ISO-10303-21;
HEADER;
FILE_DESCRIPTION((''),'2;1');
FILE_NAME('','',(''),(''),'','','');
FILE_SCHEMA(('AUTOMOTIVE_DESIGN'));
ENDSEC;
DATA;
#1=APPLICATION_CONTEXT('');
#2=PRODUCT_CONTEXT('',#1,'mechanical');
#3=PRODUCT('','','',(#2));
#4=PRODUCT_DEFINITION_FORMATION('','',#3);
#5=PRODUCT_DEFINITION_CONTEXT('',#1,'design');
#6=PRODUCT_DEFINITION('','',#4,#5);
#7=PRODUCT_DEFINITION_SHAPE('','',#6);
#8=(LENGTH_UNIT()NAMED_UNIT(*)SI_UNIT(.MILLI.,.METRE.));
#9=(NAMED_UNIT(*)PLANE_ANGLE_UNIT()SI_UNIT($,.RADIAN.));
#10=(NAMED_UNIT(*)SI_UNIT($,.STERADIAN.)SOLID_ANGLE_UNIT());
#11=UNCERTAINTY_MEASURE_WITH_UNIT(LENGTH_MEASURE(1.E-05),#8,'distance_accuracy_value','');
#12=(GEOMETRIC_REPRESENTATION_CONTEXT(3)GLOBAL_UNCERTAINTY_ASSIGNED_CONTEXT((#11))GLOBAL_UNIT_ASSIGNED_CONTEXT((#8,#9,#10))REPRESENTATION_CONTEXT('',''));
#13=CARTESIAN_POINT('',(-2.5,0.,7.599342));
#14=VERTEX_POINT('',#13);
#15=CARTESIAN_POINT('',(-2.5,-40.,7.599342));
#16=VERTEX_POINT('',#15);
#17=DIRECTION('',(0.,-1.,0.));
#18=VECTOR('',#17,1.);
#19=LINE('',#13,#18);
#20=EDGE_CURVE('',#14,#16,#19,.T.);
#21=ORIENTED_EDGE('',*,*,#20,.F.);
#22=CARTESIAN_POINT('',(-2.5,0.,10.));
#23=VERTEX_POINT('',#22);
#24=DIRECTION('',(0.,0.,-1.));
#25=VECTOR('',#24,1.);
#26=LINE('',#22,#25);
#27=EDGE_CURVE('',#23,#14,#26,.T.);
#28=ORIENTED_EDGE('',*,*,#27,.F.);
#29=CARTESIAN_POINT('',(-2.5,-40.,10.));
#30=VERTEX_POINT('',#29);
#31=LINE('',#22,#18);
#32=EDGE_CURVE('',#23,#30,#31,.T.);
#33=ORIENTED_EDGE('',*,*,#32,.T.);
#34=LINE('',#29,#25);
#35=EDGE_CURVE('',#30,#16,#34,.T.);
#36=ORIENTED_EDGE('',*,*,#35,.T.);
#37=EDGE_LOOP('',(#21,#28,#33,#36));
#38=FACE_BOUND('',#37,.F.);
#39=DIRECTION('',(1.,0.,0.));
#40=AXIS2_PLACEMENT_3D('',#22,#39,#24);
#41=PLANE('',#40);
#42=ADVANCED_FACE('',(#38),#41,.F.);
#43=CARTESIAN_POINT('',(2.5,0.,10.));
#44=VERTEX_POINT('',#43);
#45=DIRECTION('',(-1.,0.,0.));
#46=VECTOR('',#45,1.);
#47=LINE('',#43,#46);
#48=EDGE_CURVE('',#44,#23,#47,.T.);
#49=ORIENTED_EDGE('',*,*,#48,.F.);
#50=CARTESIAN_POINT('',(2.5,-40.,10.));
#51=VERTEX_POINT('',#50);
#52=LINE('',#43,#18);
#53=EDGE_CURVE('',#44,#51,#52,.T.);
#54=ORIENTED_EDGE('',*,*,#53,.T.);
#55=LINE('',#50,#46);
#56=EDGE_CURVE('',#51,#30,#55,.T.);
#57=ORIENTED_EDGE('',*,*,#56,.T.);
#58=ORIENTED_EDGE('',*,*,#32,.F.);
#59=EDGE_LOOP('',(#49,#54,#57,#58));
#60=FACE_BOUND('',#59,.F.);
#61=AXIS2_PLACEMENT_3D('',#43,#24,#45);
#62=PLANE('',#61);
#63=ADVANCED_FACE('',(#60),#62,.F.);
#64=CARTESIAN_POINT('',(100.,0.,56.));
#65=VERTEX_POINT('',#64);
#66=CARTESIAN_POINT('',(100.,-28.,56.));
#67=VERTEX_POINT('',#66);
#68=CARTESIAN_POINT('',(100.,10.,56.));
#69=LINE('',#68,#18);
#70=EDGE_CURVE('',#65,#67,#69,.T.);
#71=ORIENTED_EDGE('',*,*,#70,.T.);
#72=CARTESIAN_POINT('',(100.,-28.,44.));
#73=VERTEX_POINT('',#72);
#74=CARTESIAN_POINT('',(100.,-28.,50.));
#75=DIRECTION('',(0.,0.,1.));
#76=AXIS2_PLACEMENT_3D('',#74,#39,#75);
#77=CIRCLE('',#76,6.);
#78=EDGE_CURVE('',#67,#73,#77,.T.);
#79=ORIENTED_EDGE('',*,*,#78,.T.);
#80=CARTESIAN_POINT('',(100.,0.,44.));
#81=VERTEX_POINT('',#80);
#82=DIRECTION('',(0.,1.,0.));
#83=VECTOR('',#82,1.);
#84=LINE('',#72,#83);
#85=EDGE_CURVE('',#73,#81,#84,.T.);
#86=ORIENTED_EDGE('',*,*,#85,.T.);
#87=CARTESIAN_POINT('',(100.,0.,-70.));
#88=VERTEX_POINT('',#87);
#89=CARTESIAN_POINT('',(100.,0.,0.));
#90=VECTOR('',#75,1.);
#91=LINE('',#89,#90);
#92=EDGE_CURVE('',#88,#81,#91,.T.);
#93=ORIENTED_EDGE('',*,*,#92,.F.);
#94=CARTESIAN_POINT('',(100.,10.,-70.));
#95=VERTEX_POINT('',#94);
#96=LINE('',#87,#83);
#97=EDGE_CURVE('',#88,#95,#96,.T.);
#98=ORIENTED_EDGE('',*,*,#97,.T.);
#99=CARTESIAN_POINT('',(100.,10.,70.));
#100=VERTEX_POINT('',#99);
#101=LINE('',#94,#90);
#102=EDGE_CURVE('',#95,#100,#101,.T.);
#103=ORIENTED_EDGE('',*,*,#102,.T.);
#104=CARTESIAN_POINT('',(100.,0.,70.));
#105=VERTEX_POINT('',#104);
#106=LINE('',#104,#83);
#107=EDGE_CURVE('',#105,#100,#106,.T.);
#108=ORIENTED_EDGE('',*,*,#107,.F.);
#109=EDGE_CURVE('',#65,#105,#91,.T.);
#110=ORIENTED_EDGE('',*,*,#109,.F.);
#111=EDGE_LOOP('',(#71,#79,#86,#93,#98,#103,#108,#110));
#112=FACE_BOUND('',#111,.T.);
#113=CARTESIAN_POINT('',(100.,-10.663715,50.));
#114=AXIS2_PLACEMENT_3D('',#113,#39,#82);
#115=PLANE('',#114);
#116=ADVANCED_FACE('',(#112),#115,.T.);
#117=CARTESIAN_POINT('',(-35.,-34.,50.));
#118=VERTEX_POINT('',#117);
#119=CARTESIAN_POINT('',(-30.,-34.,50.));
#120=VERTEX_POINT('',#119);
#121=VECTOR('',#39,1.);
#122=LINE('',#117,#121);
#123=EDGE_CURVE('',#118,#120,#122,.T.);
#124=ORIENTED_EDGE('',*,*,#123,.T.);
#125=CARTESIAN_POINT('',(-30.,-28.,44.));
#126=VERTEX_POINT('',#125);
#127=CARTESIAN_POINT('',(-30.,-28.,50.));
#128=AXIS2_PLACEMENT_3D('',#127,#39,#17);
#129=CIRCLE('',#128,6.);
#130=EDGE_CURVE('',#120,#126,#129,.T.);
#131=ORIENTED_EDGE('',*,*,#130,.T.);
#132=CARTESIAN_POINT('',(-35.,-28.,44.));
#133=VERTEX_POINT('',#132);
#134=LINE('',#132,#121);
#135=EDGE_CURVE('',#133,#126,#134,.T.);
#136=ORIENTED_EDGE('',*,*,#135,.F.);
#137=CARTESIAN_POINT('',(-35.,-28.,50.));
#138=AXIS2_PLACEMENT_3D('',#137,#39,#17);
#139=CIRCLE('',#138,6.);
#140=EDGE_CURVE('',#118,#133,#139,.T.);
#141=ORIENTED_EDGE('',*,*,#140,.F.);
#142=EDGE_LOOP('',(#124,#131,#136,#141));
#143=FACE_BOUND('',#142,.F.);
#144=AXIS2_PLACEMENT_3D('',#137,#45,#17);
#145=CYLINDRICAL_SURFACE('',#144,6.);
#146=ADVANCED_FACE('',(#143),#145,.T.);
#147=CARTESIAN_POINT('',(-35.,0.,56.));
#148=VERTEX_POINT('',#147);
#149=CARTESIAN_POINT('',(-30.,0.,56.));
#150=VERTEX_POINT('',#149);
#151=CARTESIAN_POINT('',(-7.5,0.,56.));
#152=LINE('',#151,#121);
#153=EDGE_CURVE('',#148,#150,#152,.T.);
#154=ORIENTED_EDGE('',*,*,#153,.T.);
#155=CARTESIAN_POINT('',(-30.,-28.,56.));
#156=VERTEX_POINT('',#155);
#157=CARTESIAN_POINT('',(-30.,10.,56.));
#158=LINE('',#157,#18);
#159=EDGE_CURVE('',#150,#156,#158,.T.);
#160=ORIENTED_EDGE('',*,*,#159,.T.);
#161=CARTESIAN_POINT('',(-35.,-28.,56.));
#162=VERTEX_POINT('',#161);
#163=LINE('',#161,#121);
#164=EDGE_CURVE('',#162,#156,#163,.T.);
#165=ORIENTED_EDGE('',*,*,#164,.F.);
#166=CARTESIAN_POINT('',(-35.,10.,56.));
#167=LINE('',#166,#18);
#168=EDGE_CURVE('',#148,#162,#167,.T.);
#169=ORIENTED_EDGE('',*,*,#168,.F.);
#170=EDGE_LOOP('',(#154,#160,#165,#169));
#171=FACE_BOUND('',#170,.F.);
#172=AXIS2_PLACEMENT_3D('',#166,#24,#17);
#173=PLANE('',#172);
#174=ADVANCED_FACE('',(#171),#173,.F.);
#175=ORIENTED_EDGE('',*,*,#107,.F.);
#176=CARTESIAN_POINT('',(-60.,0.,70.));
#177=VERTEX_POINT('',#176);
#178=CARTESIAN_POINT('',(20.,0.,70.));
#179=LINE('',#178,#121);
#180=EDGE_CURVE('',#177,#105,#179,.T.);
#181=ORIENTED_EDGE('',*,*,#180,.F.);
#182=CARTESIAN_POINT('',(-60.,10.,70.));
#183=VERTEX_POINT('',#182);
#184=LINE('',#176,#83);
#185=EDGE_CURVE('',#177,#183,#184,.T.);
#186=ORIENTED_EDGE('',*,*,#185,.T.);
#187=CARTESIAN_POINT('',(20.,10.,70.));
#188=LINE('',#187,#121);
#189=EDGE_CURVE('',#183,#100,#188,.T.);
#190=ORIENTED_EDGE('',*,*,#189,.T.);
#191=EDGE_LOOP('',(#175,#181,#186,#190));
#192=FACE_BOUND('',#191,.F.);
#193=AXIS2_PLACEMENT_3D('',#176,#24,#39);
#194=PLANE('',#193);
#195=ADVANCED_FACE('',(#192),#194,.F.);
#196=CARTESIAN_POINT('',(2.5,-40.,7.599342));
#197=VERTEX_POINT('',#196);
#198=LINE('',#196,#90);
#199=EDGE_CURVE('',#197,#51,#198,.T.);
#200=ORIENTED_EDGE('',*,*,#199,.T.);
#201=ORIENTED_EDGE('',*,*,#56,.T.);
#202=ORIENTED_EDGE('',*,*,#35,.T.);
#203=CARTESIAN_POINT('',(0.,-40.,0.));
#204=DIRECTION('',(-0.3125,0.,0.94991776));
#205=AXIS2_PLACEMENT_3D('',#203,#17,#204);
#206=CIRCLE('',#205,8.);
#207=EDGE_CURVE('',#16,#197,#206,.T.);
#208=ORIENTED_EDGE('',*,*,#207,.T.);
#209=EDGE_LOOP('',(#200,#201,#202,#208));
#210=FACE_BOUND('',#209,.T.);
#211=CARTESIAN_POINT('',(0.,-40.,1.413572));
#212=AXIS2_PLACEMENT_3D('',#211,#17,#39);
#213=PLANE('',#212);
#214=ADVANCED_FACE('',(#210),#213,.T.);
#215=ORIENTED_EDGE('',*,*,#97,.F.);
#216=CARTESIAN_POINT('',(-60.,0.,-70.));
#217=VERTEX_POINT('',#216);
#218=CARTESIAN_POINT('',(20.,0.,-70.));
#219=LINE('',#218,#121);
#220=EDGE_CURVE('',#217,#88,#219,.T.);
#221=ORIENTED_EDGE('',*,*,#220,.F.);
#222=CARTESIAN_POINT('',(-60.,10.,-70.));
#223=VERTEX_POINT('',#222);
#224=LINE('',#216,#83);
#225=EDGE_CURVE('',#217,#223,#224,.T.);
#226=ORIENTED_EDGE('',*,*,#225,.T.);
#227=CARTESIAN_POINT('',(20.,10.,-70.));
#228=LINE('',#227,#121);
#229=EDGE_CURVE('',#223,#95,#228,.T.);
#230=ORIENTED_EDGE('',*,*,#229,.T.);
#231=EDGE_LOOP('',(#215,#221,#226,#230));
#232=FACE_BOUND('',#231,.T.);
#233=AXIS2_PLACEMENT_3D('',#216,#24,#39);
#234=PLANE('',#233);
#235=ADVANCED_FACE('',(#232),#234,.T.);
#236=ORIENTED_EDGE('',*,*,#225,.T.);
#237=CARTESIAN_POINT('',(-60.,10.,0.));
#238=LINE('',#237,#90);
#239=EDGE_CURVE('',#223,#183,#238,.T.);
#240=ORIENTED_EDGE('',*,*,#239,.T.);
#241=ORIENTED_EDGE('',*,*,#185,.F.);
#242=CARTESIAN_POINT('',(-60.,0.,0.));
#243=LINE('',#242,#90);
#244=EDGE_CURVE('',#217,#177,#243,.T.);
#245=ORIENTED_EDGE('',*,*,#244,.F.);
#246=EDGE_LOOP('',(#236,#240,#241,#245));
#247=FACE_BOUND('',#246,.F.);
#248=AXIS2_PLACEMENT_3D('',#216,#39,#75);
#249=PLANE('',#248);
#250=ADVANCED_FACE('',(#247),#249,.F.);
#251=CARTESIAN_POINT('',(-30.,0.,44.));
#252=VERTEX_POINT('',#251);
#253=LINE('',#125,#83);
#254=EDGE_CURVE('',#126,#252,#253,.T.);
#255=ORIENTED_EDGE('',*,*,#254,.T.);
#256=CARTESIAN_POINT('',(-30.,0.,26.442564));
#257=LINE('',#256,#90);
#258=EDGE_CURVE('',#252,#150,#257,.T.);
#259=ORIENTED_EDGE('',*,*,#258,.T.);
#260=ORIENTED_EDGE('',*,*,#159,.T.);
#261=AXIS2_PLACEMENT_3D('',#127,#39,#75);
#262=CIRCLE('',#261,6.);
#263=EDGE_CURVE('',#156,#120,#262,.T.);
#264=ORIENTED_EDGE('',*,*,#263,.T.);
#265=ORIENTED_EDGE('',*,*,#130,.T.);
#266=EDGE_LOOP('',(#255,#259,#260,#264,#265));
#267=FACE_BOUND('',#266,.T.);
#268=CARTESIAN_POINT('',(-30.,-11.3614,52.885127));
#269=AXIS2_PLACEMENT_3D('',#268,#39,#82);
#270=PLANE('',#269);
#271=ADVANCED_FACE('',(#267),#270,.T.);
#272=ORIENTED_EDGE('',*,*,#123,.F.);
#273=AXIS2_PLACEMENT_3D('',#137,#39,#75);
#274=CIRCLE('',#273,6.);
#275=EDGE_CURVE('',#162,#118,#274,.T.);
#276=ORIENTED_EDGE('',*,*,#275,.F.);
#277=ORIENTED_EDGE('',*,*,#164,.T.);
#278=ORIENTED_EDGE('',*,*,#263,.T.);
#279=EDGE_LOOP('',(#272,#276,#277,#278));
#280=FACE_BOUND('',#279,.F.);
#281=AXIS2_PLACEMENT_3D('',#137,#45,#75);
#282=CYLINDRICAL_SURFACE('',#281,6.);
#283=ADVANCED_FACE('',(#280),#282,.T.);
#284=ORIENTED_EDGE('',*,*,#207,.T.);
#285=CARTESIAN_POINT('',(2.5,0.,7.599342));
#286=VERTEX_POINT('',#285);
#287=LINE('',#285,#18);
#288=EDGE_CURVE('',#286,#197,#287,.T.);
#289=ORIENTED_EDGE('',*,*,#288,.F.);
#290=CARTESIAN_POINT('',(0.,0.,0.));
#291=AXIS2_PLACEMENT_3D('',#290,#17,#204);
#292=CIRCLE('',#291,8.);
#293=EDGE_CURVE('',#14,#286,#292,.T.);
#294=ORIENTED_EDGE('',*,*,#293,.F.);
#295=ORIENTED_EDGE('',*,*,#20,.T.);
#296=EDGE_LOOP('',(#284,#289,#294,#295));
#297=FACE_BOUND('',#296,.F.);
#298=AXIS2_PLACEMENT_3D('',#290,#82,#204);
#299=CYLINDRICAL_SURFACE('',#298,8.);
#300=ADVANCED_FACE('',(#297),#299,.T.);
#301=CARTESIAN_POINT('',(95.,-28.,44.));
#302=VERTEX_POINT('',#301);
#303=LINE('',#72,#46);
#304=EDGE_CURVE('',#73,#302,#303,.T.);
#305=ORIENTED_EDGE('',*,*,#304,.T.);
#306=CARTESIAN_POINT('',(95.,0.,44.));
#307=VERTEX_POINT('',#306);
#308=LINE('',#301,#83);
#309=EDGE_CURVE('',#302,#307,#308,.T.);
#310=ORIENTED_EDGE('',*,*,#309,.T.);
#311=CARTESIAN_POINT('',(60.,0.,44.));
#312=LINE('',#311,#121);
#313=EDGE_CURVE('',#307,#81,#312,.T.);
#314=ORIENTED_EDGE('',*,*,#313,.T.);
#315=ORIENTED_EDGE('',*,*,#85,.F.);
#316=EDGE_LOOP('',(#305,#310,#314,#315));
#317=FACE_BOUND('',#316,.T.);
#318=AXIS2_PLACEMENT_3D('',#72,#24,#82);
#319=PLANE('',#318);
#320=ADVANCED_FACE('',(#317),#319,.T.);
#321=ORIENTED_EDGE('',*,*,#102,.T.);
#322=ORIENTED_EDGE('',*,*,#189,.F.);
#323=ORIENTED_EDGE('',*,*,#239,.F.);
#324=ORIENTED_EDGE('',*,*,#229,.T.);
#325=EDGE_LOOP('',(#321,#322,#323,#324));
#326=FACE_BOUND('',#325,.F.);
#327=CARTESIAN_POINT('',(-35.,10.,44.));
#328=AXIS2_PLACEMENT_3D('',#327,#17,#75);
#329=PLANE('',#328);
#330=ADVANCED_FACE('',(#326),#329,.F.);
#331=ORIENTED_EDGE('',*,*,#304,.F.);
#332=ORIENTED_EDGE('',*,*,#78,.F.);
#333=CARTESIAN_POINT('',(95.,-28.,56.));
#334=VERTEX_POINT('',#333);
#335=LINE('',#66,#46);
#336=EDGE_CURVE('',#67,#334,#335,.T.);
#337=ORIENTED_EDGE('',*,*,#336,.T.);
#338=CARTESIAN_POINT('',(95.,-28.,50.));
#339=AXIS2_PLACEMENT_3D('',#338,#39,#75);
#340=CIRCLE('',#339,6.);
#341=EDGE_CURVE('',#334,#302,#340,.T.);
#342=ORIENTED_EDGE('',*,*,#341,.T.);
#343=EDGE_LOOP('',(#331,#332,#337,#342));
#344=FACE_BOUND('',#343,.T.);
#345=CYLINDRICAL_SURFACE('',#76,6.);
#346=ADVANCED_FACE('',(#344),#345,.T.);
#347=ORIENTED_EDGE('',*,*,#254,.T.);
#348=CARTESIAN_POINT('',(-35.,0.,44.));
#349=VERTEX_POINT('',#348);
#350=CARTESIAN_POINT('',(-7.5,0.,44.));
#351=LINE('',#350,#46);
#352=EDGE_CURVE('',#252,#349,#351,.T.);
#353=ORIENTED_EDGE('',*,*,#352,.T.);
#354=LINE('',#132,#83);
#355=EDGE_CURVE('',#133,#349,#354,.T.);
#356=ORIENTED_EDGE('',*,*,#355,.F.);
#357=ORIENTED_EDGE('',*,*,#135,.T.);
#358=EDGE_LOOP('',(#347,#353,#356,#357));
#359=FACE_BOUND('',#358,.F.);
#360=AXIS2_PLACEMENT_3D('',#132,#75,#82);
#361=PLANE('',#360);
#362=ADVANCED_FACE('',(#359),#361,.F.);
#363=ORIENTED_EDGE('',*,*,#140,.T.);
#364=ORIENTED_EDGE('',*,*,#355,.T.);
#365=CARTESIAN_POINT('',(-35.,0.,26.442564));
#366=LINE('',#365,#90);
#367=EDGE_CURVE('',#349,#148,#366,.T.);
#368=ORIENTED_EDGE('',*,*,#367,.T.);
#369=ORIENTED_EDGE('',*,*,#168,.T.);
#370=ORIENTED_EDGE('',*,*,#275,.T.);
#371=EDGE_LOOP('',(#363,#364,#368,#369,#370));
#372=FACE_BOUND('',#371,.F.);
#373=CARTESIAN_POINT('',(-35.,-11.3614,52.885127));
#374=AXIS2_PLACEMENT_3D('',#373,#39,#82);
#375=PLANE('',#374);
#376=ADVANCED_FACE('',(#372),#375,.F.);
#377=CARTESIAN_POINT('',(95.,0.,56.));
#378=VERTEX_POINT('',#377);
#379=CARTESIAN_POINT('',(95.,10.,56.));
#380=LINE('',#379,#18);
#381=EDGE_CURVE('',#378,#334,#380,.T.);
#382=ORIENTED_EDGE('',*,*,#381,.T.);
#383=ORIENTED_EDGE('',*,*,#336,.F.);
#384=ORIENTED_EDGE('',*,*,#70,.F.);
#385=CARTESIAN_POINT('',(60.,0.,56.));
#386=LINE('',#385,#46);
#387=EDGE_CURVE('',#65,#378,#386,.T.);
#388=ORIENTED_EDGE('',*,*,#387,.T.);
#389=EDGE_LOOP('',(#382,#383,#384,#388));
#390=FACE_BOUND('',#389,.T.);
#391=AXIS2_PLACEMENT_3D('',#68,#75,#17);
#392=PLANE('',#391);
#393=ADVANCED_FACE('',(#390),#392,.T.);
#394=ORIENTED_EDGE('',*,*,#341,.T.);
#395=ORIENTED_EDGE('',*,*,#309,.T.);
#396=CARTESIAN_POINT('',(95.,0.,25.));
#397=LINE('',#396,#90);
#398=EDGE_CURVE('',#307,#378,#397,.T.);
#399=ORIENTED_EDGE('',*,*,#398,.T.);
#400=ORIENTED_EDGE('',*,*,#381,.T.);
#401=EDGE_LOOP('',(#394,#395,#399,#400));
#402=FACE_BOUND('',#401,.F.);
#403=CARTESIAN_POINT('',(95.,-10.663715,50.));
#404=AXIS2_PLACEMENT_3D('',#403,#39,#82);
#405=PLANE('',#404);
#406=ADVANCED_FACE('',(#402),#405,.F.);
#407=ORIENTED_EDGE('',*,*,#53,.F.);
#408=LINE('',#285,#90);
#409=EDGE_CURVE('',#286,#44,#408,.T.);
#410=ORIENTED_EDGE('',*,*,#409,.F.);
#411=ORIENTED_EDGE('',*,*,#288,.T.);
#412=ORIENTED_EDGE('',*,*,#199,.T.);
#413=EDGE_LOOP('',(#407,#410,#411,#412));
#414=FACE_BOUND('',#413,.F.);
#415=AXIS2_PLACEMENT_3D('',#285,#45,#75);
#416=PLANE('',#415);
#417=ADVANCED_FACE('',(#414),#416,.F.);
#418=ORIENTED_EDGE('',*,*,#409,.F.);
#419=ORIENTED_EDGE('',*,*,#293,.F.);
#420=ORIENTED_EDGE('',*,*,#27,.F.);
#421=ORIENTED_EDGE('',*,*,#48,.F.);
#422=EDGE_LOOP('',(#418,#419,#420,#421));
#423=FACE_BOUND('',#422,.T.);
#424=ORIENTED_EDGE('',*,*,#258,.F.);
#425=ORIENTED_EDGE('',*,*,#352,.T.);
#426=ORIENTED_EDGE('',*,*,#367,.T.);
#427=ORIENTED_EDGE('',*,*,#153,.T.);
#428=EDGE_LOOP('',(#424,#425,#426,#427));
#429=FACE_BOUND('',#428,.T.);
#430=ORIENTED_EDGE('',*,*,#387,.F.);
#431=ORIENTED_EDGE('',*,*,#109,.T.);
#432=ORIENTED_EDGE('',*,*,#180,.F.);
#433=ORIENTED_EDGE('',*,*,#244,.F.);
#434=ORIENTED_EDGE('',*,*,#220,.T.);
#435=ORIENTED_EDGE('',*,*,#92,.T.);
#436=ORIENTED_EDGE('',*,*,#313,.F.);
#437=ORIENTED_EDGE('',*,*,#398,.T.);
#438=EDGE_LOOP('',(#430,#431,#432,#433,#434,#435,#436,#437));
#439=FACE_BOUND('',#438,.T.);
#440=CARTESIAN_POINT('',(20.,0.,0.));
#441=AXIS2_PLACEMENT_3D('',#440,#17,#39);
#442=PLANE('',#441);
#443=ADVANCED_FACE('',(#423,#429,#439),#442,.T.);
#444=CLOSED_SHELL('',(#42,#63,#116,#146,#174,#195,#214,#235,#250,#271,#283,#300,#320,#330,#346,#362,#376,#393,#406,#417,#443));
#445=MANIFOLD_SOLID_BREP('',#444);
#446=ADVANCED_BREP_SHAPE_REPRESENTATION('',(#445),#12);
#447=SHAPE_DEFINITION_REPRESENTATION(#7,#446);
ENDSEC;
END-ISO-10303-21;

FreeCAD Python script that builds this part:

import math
import FreeCAD as App
import Part
import Sketcher

doc = App.newDocument("Part")
body = doc.addObject("PartDesign::Body", "Body")

# Sketch on XZ plane
sketch1 = body.newObject("Sketcher::SketchObject", "Sketch")
sketch1.AttachmentSupport = (doc.getObject("XZ_Plane"), [""])
sketch1.MapMode = "FlatFace"
sketch1.addGeometry([
    Part.LineSegment(App.Vector(-60, 70, 0), App.Vector(-60, -70, 0)),
    Part.LineSegment(App.Vector(-60, -70, 0), App.Vector(100, -70, 0)),
    Part.LineSegment(App.Vector(100, -70, 0), App.Vector(100, 70, 0)),
    Part.LineSegment(App.Vector(100, 70, 0), App.Vector(-60, 70, 0)),
], False)
sketch1.addConstraint([
    Sketcher.Constraint("Coincident", 0, 2, 1, 1),
    Sketcher.Constraint("Coincident", 1, 2, 2, 1),
    Sketcher.Constraint("Coincident", 2, 2, 3, 1),
    Sketcher.Constraint("Coincident", 3, 2, 0, 1),
    Sketcher.Constraint("Vertical", 0),
    Sketcher.Constraint("Horizontal", 1),
    Sketcher.Constraint("Vertical", 2),
    Sketcher.Constraint("Horizontal", 3),
    Sketcher.Constraint("DistanceX", 1, 1, 1, 2, 160.0),
    Sketcher.Constraint("DistanceY", 0, 2, 0, 1, 140.0),
    Sketcher.Constraint("DistanceX", 0, 2, -1, 1, 60.0),
    Sketcher.Constraint("DistanceY", 0, 2, -1, 1, 70.0),
])
pad1 = body.newObject("PartDesign::Pad", "Pad")
pad1.Profile = sketch1
pad1.Length = 10
pad1.Reversed = True

# Sketch on XZ plane
sketch2 = body.newObject("Sketcher::SketchObject", "Sketch001")
sketch2.AttachmentSupport = (doc.getObject("XZ_Plane"), [""])
sketch2.MapMode = "FlatFace"
sketch2.addGeometry([
    Part.LineSegment(App.Vector(-2.5, 10, 0), App.Vector(-2.5, 7.6, 0)),
    Part.ArcOfCircle(Part.Circle(App.Vector(0, 0, 0), App.Vector(0, 0, 1), 8), math.radians(108), math.radians(432)),
    Part.LineSegment(App.Vector(2.5, 7.6, 0), App.Vector(2.5, 10, 0)),
    Part.LineSegment(App.Vector(2.5, 10, 0), App.Vector(-2.5, 10, 0)),
], False)
sketch2.addConstraint([
    Sketcher.Constraint("Coincident", 0, 2, 1, 1),
    Sketcher.Constraint("Coincident", 1, 2, 2, 1),
    Sketcher.Constraint("Coincident", 2, 2, 3, 1),
    Sketcher.Constraint("Coincident", 3, 2, 0, 1),
    Sketcher.Constraint("Vertical", 0),
    Sketcher.Constraint("Vertical", 2),
    Sketcher.Constraint("Horizontal", 3),
    Sketcher.Constraint("Coincident", 1, 3, -1, 1),
    Sketcher.Constraint("Horizontal", 0, 2, 1, 2),
    Sketcher.Constraint("Radius", 1, 8.0),
    Sketcher.Constraint("DistanceX", 3, 2, 3, 1, 5.0),
    Sketcher.Constraint("DistanceY", -1, 1, 2, 2, 10.0),
])
pad2 = body.newObject("PartDesign::Pad", "Pad001")
pad2.Profile = sketch2
pad2.Length = 40

# Sketch on YZ plane
sketch3 = body.newObject("Sketcher::SketchObject", "Sketch002")
sketch3.AttachmentSupport = (doc.getObject("YZ_Plane"), [""])
sketch3.MapMode = "FlatFace"
sketch3.AttachmentOffset = App.Placement(App.Vector(0, 0, 100), App.Rotation())
sketch3.addGeometry([
    Part.ArcOfCircle(Part.Circle(App.Vector(-28, 50, 0), App.Vector(0, 0, 1), 6), math.radians(90), math.radians(270)),
    Part.LineSegment(App.Vector(-28, 44, 0), App.Vector(10, 44, 0)),
    Part.LineSegment(App.Vector(10, 44, 0), App.Vector(10, 56, 0)),
    Part.LineSegment(App.Vector(10, 56, 0), App.Vector(-28, 56, 0)),
], False)
sketch3.addConstraint([
    Sketcher.Constraint("Tangent", 0, 2, 1, 1),
    Sketcher.Constraint("Coincident", 1, 2, 2, 1),
    Sketcher.Constraint("Coincident", 2, 2, 3, 1),
    Sketcher.Constraint("Tangent", 3, 2, 0, 1),
    Sketcher.Constraint("Horizontal", 1),
    Sketcher.Constraint("Vertical", 2),
    Sketcher.Constraint("Horizontal", 3),
    Sketcher.Constraint("Radius", 0, 6.0),
    Sketcher.Constraint("DistanceX", 1, 1, 1, 2, 38.0),
    Sketcher.Constraint("DistanceX", 0, 3, -1, 1, 28.0),
    Sketcher.Constraint("DistanceY", -1, 1, 0, 3, 50.0),
])
pad3 = body.newObject("PartDesign::Pad", "Pad002")
pad3.Profile = sketch3
pad3.Length = 5
pad3.Reversed = True

# Sketch on YZ plane
sketch4 = body.newObject("Sketcher::SketchObject", "Sketch003")
sketch4.AttachmentSupport = (doc.getObject("YZ_Plane"), [""])
sketch4.MapMode = "FlatFace"
sketch4.AttachmentOffset = App.Placement(App.Vector(0, 0, -35), App.Rotation())
sketch4.addGeometry([
    Part.LineSegment(App.Vector(10, 56, 0), App.Vector(-28, 56, 0)),  # 0
    Part.ArcOfCircle(Part.Circle(App.Vector(-28, 50, 0), App.Vector(0, 0, 1), 6), math.radians(90), math.radians(180)),  # 1
    Part.ArcOfCircle(Part.Circle(App.Vector(-28, 50, 0), App.Vector(0, 0, 1), 6), math.radians(180), math.radians(270)),  # 2
    Part.LineSegment(App.Vector(-28, 44, 0), App.Vector(10, 44, 0)),  # 3
    Part.LineSegment(App.Vector(10, 44, 0), App.Vector(10, 56, 0)),  # 4
], False)
sketch4.addConstraint([
    Sketcher.Constraint("Tangent", 0, 2, 1, 1),
    Sketcher.Constraint("Tangent", 1, 2, 2, 1),
    Sketcher.Constraint("Tangent", 2, 2, 3, 1),
    Sketcher.Constraint("Coincident", 3, 2, 4, 1),
    Sketcher.Constraint("Coincident", 4, 2, 0, 1),
    Sketcher.Constraint("Horizontal", 0),
    Sketcher.Constraint("Horizontal", 3),
    Sketcher.Constraint("Vertical", 4),
    Sketcher.Constraint("Equal", 1, 2),
    Sketcher.Constraint("Horizontal", 2, 3, 1, 2),
    Sketcher.Constraint("Radius", 1, 6.0),
    Sketcher.Constraint("DistanceX", 0, 2, 0, 1, 38.0),
    Sketcher.Constraint("DistanceX", 1, 3, -1, 1, 28.0),
    Sketcher.Constraint("DistanceY", -1, 1, 1, 3, 50.0),
])
pad4 = body.newObject("PartDesign::Pad", "Pad003")
pad4.Profile = sketch4
pad4.Length = 5

doc.recompute()
